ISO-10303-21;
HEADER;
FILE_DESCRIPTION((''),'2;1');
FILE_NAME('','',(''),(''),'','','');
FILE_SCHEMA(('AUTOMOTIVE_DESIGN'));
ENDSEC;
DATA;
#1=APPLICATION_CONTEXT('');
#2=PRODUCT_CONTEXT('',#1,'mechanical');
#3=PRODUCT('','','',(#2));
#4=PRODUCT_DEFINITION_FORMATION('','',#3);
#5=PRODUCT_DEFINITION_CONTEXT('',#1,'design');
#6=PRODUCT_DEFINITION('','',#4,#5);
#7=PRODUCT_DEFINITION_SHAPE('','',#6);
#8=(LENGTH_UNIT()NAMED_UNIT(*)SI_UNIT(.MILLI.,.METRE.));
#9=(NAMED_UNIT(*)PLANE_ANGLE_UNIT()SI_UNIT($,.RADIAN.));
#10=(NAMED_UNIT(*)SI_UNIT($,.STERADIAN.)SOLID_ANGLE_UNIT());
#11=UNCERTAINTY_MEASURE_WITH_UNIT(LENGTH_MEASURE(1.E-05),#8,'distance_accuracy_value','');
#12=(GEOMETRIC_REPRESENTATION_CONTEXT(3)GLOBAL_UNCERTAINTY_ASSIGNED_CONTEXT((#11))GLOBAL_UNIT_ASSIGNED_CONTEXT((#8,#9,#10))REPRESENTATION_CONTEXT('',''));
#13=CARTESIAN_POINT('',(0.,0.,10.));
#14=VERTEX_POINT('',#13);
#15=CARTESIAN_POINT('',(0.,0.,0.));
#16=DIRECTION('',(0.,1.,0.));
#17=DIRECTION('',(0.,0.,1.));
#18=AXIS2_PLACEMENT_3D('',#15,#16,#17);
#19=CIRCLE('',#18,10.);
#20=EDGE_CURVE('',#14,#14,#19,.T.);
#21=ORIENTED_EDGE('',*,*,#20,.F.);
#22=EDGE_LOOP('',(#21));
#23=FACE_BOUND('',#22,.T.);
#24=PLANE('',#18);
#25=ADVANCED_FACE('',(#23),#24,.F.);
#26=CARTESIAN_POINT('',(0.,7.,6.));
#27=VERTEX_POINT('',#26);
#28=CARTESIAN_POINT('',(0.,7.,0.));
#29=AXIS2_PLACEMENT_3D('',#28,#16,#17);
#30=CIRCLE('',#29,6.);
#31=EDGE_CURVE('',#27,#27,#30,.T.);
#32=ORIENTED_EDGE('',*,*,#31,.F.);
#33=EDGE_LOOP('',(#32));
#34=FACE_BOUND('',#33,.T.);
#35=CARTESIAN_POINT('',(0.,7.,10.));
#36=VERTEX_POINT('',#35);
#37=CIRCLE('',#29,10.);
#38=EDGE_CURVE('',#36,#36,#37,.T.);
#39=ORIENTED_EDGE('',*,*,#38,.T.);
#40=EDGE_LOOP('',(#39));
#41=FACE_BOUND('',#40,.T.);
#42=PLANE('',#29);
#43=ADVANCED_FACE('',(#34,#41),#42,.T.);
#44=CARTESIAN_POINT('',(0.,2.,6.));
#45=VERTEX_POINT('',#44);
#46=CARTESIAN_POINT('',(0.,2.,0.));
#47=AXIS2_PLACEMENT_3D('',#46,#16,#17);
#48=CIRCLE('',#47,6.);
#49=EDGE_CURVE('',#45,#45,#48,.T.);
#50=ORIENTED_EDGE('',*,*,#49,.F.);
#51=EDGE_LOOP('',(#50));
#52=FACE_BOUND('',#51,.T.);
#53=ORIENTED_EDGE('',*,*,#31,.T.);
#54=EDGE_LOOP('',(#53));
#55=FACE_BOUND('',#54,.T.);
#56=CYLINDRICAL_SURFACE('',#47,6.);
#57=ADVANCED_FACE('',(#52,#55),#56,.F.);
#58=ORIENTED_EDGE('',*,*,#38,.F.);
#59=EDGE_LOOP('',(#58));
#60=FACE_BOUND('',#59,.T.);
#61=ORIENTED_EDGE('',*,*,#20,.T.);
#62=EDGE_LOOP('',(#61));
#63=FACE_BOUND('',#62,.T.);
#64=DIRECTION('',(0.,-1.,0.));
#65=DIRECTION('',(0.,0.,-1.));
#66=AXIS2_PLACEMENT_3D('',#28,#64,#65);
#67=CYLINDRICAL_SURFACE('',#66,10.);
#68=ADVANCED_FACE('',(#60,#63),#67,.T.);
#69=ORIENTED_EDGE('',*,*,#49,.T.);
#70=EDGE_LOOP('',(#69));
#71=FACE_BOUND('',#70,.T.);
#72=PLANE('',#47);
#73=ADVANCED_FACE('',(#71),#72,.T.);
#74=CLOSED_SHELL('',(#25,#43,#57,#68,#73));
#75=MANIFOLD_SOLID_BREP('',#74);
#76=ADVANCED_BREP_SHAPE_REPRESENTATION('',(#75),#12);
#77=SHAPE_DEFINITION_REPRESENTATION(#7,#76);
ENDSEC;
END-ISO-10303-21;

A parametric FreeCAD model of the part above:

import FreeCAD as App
import Part
import Sketcher

doc = App.newDocument("Part")
body = doc.addObject("PartDesign::Body", "Body")

# Sketch on XZ plane
sketch1 = body.newObject("Sketcher::SketchObject", "Sketch")
sketch1.AttachmentSupport = (doc.getObject("XZ_Plane"), [""])
sketch1.MapMode = "FlatFace"
sketch1.addGeometry(Part.Circle(App.Vector(0, 0, 0), App.Vector(0, 0, 1), 10), False)
sketch1.addConstraint(Sketcher.Constraint("Coincident", 0, 3, -1, 1))
sketch1.addConstraint(Sketcher.Constraint("Diameter", 0, 20.0))
pad1 = body.newObject("PartDesign::Pad", "Pad")
pad1.Profile = sketch1
pad1.Length = 7
pad1.Reversed = True

# Sketch on XZ plane
sketch2 = body.newObject("Sketcher::SketchObject", "Sketch001")
sketch2.AttachmentSupport = (doc.getObject("XZ_Plane"), [""])
sketch2.MapMode = "FlatFace"
sketch2.AttachmentOffset = App.Placement(App.Vector(0, 0, -7), App.Rotation())
sketch2.addGeometry(Part.Circle(App.Vector(0, 0, 0), App.Vector(0, 0, 1), 6), False)
sketch2.addConstraint(Sketcher.Constraint("Coincident", 0, 3, -1, 1))
sketch2.addConstraint(Sketcher.Constraint("Diameter", 0, 12.0))
pocket1 = body.newObject("PartDesign::Pocket", "Pocket")
pocket1.Profile = sketch2
pocket1.Length = 5
pocket1.Reversed = True

doc.recompute()
